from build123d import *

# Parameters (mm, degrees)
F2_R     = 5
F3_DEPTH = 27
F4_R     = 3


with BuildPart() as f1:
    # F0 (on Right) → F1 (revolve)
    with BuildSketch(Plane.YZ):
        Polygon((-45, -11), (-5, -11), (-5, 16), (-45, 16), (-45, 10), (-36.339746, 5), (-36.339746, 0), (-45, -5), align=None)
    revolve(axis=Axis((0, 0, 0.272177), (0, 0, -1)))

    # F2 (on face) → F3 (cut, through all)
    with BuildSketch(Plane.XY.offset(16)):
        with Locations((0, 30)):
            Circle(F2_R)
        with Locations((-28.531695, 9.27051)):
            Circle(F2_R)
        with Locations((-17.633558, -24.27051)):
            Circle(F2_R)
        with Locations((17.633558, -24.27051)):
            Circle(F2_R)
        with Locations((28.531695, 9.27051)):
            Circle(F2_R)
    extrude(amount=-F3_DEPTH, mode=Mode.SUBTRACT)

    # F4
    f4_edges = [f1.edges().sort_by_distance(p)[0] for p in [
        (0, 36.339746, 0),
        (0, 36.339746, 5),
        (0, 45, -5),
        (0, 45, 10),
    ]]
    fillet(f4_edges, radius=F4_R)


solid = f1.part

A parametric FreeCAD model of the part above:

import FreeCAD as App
import Part
import Sketcher

V = App.Vector
Q = App.Units.Quantity


def edges_at(feature, points):
    """Names of the edges that pass closest to the given points."""
    edges = feature.Shape.Edges
    near = lambda p: min(range(len(edges)), key=lambda i: edges[i].distToShape(Part.Vertex(*p))[0])
    return sorted({f"Edge{near(p) + 1}" for p in points})


def add_polygon(sketch, points):
    """Adds a closed chain of lines whose ends are joined by coincident constraints."""
    first, n = sketch.GeometryCount, len(points)
    for a, b in zip(points, points[1:] + points[:1]):
        sketch.addGeometry(Part.LineSegment(App.Vector(*a, 0), App.Vector(*b, 0)), False)
    for i in range(n):
        sketch.addConstraint(Sketcher.Constraint("Coincident", first + i, 2, first + (i + 1) % n, 1))

doc = App.newDocument("Part")
params = doc.addObject("Spreadsheet::Sheet", "Params")
for row, (alias, value) in enumerate([
    ("sketch1_width", "40 mm"),
    ("sketch1_height", "27 mm"),
    ("sketch1_height2", "6 mm"),
    ("sketch1_height3", "5 mm"),
    ("revolution_angle", "360 deg"),
    ("sketch2_diameter", "10 mm"),
    ("fillet_radius", "3 mm"),
], start=1):
    params.set(f"A{row}", alias)
    params.set(f"B{row}", "=" + value)
    params.setAlias(f"B{row}", alias)

body = doc.addObject("PartDesign::Body", "Body")

# Sketch on YZ plane
sketch1 = doc.addObject("Sketcher::SketchObject", "Sketch")
body.addObject(sketch1)
sketch1.AttachmentSupport = (doc.YZ_Plane, [""])
sketch1.MapMode = "FlatFace"
add_polygon(sketch1, [(-45, -11), (-5, -11), (-5, 16), (-45, 16), (-45, 10), (-36, 5), (-36, 0), (-45, -5)])  # lines 0-7
sketch1.addConstraint([
    Sketcher.Constraint("Horizontal", 0),
    Sketcher.Constraint("Vertical", 1),
    Sketcher.Constraint("Horizontal", 2),
    Sketcher.Constraint("Vertical", 3),
    Sketcher.Constraint("Vertical", 5),
    Sketcher.Constraint("Vertical", 7),
    Sketcher.Constraint("PointOnObject", 5, 2, -1),
    Sketcher.Constraint("Vertical", 3, 2, 6, 2),
    Sketcher.Constraint("Equal", 3, 7),
    Sketcher.Constraint("Equal", 4, 6),
    Sketcher.Constraint("DistanceX", 0, 1, 0, 2, 40.0),
    Sketcher.Constraint("DistanceY", 1, 1, 1, 2, 27.0),
    Sketcher.Constraint("DistanceY", 3, 2, 3, 1, 6.0),
    Sketcher.Constraint("DistanceY", 5, 2, 5, 1, 5.0),
    Sketcher.Constraint("Angle", 4, Q("-30 deg")),
    Sketcher.Constraint("DistanceX", 0, 2, -1, 1, 5.0),
])
sketch1.setExpression("Constraints[18]", "Params.sketch1_width")
sketch1.setExpression("Constraints[19]", "Params.sketch1_height")
sketch1.setExpression("Constraints[20]", "Params.sketch1_height2")
sketch1.setExpression("Constraints[21]", "Params.sketch1_height3")
revolution = doc.addObject("PartDesign::Revolution", "Revolution")
body.addObject(revolution)
revolution.Profile = sketch1
revolution.ReferenceAxis = (sketch1, ["V_Axis"])
revolution.setExpression("Angle", "Params.revolution_angle")

# Sketch on XY plane
sketch2 = doc.addObject("Sketcher::SketchObject", "Sketch001")
body.addObject(sketch2)
sketch2.AttachmentSupport = (doc.XY_Plane, [""])
sketch2.MapMode = "FlatFace"
sketch2.AttachmentOffset = App.Placement(V(0, 0, 16), App.Rotation())
sketch2.addGeometry([
    Part.Circle(V(0, 30, 0), V(0, 0, 1), 5),  # 0
    Part.Circle(V(-29, 9, 0), V(0, 0, 1), 5),  # 1
    Part.Circle(V(-18, -24, 0), V(0, 0, 1), 5),  # 2
    Part.Circle(V(18, -24, 0), V(0, 0, 1), 5),  # 3
    Part.Circle(V(29, 9, 0), V(0, 0, 1), 5),  # 4
], False)
sketch2.addConstraint([
    Sketcher.Constraint("Equal", 0, 1),
    Sketcher.Constraint("Equal", 1, 2),
    Sketcher.Constraint("Equal", 2, 3),
    Sketcher.Constraint("Equal", 3, 4),
    Sketcher.Constraint("Symmetric", 2, 3, 3, 3, -2),
    Sketcher.Constraint("Symmetric", 1, 3, 4, 3, -2),
    Sketcher.Constraint("PointOnObject", 0, 3, -2),
    Sketcher.Constraint("Diameter", 0, 10.0),
    Sketcher.Constraint("DistanceY", -1, 1, 0, 3, 30.0),
    Sketcher.Constraint("DistanceY", -1, 1, 1, 3, 9.27051),
    Sketcher.Constraint("DistanceX", 2, 3, -1, 1, 17.633558),
    Sketcher.Constraint("DistanceY", 2, 3, -1, 1, 24.27051),
    Sketcher.Constraint("DistanceX", 1, 3, 4, 3, 57.06339),
])
sketch2.setExpression("Constraints[7]", "Params.sketch2_diameter")
pocket1 = doc.addObject("PartDesign::Pocket", "Pocket")
body.addObject(pocket1)
pocket1.Profile = sketch2
pocket1.Type = "ThroughAll"
doc.recompute()

fillet = doc.addObject("PartDesign::Fillet", "Fillet")
body.addObject(fillet)
fillet.Base = (pocket1, edges_at(pocket1, [
    (0, 36.34, 0),
    (0, 36.34, 5),
    (0, 45, -5),
    (0, 45, 10),
]))
fillet.setExpression("Radius", "Params.fillet_radius")

doc.recompute()
